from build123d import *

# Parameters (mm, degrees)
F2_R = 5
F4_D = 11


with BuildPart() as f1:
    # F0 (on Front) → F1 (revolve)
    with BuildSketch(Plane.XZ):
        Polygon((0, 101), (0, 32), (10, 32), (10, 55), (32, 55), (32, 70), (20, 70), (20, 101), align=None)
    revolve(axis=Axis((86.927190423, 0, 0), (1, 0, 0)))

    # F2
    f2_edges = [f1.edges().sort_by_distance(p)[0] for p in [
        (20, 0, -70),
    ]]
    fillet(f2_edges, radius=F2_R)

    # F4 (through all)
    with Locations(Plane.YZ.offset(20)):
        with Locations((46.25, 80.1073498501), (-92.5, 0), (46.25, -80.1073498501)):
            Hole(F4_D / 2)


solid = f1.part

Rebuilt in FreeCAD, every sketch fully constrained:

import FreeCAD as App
import Part
import Sketcher
from FreeCAD import Vector
Q = App.Units.Quantity


def edges_at(feature, points):
    """Names of the edges that pass closest to the given points."""
    edges = feature.Shape.Edges
    near = lambda p: min(range(len(edges)), key=lambda i: edges[i].distToShape(Part.Vertex(*p))[0])
    return sorted({f"Edge{near(p) + 1}" for p in points})


def add_polygon(sketch, points):
    """Adds a closed chain of lines whose ends are joined by coincident constraints."""
    first, n = sketch.GeometryCount, len(points)
    for a, b in zip(points, points[1:] + points[:1]):
        sketch.addGeometry(Part.LineSegment(App.Vector(*a, 0), App.Vector(*b, 0)), False)
    for i in range(n):
        sketch.addConstraint(Sketcher.Constraint("Coincident", first + i, 2, first + (i + 1) % n, 1))

doc = App.newDocument("Part")
body = doc.addObject("PartDesign::Body", "Body")

# Sketch on XZ plane
sketch1 = body.newObject("Sketcher::SketchObject", "Sketch")
sketch1.AttachmentSupport = (doc.getObject("XZ_Plane"), [""])
sketch1.MapMode = "FlatFace"
add_polygon(sketch1, [(0, 101), (0, 32), (10, 32), (10, 55), (32, 55), (32, 70), (20, 70), (20, 101)])  # lines 0-7
sketch1.addConstraint(Sketcher.Constraint("Vertical", 0))
sketch1.addConstraint(Sketcher.Constraint("Horizontal", 1))
sketch1.addConstraint(Sketcher.Constraint("Vertical", 2))
sketch1.addConstraint(Sketcher.Constraint("Horizontal", 3))
sketch1.addConstraint(Sketcher.Constraint("Vertical", 4))
sketch1.addConstraint(Sketcher.Constraint("Horizontal", 5))
sketch1.addConstraint(Sketcher.Constraint("Vertical", 6))
sketch1.addConstraint(Sketcher.Constraint("Horizontal", 7))
sketch1.addConstraint(Sketcher.Constraint("PointOnObject", 0, 2, -2))
sketch1.addConstraint(Sketcher.Constraint("DistanceX", 1, 1, 1, 2, Q("10 mm")))
sketch1.addConstraint(Sketcher.Constraint("DistanceX", 3, 1, 3, 2, Q("22 mm")))
sketch1.addConstraint(Sketcher.Constraint("DistanceX", 5, 2, 5, 1, Q("12 mm")))
sketch1.addConstraint(Sketcher.Constraint("DistanceY", 0, 2, 0, 1, Q("69 mm")))
sketch1.addConstraint(Sketcher.Constraint("DistanceY", 2, 1, 2, 2, Q("23 mm")))
sketch1.addConstraint(Sketcher.Constraint("DistanceY", 4, 1, 4, 2, Q("15 mm")))
sketch1.addConstraint(Sketcher.Constraint("DistanceY", -1, 1, 0, 2, Q("32 mm")))
revolution = body.newObject("PartDesign::Revolution", "Revolution")
revolution.Profile = sketch1
revolution.ReferenceAxis = (sketch1, ["H_Axis"])
revolution.Angle = 360
doc.recompute()

fillet = body.newObject("PartDesign::Fillet", "Fillet")
fillet.Base = (revolution, edges_at(revolution, [(20, 0, -70)]))
fillet.Radius = 5

# Sketch on YZ plane
sketch2 = body.newObject("Sketcher::SketchObject", "Sketch001")
sketch2.AttachmentSupport = (doc.getObject("YZ_Plane"), [""])
sketch2.MapMode = "FlatFace"
sketch2.AttachmentOffset = App.Placement(Vector(0, 0, 20), App.Rotation())
sketch2.addGeometry(Part.Circle(Vector(46, 80, 0), Vector(0, 0, 1), 6), False)
sketch2.addGeometry(Part.Circle(Vector(-92, 0, 0), Vector(0, 0, 1), 6), False)
sketch2.addGeometry(Part.Circle(Vector(46, -80, 0), Vector(0, 0, 1), 6), False)
sketch2.addConstraint(Sketcher.Constraint("Equal", 0, 1))
sketch2.addConstraint(Sketcher.Constraint("Equal", 1, 2))
sketch2.addConstraint(Sketcher.Constraint("Symmetric", 0, 3, 2, 3, -1))
sketch2.addConstraint(Sketcher.Constraint("PointOnObject", 1, 3, -1))
sketch2.addConstraint(Sketcher.Constraint("Diameter", 0, Q("11 mm")))
sketch2.addConstraint(Sketcher.Constraint("DistanceX", 1, 3, -1, 1, Q("92.5 mm")))
sketch2.addConstraint(Sketcher.Constraint("DistanceX", -1, 1, 0, 3, Q("46.25 mm")))
sketch2.addConstraint(Sketcher.Constraint("DistanceY", 2, 3, 0, 3, Q("160.2147 mm")))
doc.recompute()
hole = body.newObject("PartDesign::Hole", "Hole")
hole.Profile = sketch2
hole.ThreadType = "None"
hole.Diameter = 11
hole.DepthType = "ThroughAll"

doc.recompute()
